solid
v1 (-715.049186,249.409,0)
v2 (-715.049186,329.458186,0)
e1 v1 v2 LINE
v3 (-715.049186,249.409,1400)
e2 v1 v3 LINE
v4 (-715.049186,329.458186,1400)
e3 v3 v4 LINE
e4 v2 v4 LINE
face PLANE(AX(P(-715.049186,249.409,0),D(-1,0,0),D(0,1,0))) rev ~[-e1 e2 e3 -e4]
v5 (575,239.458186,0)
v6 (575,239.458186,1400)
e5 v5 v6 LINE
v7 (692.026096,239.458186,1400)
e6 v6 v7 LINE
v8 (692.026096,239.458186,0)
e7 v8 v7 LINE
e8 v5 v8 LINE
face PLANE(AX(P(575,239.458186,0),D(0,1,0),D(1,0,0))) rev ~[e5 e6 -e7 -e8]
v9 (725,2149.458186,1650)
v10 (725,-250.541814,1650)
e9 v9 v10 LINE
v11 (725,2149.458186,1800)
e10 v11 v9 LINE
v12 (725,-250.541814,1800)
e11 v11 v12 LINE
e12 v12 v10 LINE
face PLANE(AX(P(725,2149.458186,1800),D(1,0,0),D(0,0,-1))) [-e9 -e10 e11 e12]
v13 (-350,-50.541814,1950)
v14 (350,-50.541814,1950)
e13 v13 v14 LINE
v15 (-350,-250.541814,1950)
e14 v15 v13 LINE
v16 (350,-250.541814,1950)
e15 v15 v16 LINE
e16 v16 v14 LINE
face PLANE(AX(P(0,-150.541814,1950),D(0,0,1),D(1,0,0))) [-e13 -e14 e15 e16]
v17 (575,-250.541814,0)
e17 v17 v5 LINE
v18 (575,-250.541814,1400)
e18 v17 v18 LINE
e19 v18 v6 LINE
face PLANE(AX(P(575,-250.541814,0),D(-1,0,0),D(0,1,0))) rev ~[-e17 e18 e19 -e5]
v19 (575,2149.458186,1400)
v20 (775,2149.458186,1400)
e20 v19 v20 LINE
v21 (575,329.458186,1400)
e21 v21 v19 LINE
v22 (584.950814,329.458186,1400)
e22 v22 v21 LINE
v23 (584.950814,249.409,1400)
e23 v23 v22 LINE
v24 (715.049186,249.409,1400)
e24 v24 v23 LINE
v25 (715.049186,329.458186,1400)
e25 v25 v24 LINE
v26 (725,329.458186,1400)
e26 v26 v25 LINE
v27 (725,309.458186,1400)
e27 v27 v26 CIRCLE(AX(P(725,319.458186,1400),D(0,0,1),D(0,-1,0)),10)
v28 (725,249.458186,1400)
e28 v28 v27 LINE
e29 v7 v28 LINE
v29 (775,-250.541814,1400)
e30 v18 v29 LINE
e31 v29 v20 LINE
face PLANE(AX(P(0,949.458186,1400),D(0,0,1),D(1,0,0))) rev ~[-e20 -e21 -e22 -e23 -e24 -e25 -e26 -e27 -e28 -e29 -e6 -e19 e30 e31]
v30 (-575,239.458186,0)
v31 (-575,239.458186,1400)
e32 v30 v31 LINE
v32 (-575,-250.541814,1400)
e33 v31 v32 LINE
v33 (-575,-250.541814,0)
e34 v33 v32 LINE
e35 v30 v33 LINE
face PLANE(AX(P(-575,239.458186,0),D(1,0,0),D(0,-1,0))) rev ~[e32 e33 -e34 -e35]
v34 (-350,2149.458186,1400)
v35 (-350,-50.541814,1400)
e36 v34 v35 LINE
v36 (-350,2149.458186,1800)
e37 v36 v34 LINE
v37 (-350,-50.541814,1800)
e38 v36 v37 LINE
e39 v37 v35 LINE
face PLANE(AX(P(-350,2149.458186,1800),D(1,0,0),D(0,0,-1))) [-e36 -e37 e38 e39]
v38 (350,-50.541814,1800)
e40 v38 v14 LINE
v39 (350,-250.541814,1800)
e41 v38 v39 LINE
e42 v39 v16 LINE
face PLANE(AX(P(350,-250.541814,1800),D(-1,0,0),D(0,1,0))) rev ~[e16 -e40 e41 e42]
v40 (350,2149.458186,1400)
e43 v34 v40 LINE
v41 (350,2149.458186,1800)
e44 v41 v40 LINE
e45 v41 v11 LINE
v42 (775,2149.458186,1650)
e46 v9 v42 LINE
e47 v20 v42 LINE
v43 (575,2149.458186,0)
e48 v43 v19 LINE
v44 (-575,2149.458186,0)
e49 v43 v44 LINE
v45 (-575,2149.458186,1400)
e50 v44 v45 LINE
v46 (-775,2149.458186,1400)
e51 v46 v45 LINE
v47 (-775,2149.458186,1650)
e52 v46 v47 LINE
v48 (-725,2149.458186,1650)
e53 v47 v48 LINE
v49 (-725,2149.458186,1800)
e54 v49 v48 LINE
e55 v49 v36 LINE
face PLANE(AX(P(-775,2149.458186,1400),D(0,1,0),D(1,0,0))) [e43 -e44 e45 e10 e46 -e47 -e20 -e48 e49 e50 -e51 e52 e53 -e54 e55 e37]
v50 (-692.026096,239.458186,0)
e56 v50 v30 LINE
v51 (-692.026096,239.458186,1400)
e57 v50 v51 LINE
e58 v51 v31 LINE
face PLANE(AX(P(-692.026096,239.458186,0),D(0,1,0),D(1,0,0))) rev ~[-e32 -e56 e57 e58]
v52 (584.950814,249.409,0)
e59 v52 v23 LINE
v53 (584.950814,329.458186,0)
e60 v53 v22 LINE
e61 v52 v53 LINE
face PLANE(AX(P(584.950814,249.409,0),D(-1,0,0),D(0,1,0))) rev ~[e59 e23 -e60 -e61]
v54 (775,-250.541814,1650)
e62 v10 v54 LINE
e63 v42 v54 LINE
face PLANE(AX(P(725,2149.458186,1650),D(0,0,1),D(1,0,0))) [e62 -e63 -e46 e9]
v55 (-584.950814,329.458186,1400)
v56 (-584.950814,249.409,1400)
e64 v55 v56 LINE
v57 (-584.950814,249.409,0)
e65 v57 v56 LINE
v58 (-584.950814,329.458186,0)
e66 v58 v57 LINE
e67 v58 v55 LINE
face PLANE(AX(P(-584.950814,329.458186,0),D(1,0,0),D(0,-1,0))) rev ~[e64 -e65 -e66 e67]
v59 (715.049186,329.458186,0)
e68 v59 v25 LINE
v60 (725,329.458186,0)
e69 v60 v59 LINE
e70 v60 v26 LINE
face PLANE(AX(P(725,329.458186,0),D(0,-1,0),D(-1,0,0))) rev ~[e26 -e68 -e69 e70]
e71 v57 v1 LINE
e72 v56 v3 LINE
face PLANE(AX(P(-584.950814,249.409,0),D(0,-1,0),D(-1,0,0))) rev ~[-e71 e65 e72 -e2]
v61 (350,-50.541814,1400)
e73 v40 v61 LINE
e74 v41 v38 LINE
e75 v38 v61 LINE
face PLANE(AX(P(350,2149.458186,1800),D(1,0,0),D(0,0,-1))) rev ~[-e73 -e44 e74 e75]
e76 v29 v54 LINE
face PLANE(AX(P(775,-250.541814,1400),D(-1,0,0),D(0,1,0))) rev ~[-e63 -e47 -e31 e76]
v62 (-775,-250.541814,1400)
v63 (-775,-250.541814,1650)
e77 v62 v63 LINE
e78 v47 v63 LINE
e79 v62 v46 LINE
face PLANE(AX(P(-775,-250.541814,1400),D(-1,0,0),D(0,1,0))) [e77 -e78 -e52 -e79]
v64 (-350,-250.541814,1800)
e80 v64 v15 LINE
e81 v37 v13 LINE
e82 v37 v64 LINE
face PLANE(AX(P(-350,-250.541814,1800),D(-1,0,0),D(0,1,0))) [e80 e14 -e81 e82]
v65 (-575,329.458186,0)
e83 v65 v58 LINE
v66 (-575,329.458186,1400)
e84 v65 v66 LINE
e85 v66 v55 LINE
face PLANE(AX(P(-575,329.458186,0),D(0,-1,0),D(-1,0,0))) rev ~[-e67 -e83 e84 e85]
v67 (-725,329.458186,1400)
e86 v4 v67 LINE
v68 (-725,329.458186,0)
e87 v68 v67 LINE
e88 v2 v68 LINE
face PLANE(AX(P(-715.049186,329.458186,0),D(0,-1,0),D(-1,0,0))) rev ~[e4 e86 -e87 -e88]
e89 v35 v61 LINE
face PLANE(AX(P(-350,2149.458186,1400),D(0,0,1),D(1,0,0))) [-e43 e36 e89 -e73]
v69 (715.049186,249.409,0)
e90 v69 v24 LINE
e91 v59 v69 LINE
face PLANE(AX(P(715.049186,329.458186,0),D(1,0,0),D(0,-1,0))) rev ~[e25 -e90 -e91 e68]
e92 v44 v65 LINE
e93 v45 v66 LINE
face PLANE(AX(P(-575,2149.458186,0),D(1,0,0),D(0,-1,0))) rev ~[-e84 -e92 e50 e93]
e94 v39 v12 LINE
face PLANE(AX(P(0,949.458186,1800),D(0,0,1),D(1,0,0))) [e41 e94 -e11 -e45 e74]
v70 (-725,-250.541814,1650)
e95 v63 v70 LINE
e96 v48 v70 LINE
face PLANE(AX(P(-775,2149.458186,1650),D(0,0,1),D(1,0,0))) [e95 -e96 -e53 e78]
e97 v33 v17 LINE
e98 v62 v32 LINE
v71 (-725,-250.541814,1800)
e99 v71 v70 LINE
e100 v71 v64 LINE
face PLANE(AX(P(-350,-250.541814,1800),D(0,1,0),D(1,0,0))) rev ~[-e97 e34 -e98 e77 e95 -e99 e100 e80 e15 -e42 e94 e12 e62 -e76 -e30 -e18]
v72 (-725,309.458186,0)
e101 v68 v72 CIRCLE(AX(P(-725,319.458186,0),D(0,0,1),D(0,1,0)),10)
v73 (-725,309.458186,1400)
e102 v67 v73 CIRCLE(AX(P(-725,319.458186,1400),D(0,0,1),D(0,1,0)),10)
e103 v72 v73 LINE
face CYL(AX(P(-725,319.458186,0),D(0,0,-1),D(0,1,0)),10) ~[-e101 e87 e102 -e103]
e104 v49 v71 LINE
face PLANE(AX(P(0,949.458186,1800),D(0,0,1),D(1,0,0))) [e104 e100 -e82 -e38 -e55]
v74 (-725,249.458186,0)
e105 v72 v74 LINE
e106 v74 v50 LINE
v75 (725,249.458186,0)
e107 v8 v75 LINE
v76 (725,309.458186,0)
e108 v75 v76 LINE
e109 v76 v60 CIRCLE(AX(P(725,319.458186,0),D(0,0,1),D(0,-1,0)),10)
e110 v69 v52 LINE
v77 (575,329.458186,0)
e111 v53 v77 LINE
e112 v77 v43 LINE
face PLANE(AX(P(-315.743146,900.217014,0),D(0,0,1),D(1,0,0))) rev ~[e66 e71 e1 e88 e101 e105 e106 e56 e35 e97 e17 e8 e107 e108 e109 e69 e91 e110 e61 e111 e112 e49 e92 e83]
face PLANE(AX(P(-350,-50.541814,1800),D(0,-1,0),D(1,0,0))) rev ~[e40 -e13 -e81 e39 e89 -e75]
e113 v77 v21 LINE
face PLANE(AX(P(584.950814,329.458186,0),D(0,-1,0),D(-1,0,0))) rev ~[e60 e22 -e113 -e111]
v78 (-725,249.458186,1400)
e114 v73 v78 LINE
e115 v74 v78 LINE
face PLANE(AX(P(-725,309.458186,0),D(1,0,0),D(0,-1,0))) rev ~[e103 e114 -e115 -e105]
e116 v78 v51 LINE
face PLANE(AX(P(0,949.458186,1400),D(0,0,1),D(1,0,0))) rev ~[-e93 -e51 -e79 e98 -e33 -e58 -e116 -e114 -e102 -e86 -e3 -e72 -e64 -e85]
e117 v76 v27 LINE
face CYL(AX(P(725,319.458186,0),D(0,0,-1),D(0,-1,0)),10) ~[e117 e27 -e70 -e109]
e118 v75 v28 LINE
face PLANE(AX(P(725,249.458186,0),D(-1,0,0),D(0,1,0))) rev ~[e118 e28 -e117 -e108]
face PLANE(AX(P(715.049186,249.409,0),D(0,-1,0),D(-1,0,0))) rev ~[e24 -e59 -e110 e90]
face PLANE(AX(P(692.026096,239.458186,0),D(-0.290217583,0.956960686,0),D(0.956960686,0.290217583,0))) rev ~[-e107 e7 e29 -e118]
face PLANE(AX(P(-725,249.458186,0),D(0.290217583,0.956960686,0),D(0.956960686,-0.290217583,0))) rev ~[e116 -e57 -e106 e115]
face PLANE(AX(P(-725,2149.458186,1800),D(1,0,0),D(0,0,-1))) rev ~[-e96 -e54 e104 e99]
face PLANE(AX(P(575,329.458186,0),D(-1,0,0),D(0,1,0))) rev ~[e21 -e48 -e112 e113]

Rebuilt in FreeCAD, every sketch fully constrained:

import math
import FreeCAD as App
import Part
import Sketcher

doc = App.newDocument("Part")
body = doc.addObject("PartDesign::Body", "Body")

# Sketch on XY plane
sketch1 = body.newObject("Sketcher::SketchObject", "Sketch")
sketch1.AttachmentSupport = (doc.getObject("XY_Plane"), [""])
sketch1.MapMode = "FlatFace"
sketch1.addGeometry(Part.ArcOfCircle(Part.Circle(App.Vector(-725, 319.458186, 0), App.Vector(0, 0, 1), 10), math.radians(90), math.radians(270)), False)
sketch1.addGeometry(Part.LineSegment(App.Vector(-725, 309.458186, 0), App.Vector(-725, 249.458186, 0)), False)
sketch1.addGeometry(Part.LineSegment(App.Vector(-725, 249.458186, 0), App.Vector(-692.026096, 239.458186, 0)), False)
sketch1.addGeometry(Part.LineSegment(App.Vector(-692.026096, 239.458186, 0), App.Vector(-575, 239.458186, 0)), False)
sketch1.addGeometry(Part.LineSegment(App.Vector(-575, 239.458186, 0), App.Vector(-575, -250.541814, 0)), False)
sketch1.addGeometry(Part.LineSegment(App.Vector(-575, -250.541814, 0), App.Vector(575, -250.541814, 0)), False)
sketch1.addGeometry(Part.LineSegment(App.Vector(575, -250.541814, 0), App.Vector(575, 239.458186, 0)), False)
sketch1.addGeometry(Part.LineSegment(App.Vector(575, 239.458186, 0), App.Vector(692.026096, 239.458186, 0)), False)
sketch1.addGeometry(Part.LineSegment(App.Vector(692.026096, 239.458186, 0), App.Vector(725, 249.458186, 0)), False)
sketch1.addGeometry(Part.LineSegment(App.Vector(725, 249.458186, 0), App.Vector(725, 309.458186, 0)), False)
sketch1.addGeometry(Part.ArcOfCircle(Part.Circle(App.Vector(725, 319.458186, 0), App.Vector(0, 0, 1), 10), math.radians(-90), math.radians(90)), False)
sketch1.addGeometry(Part.LineSegment(App.Vector(725, 329.458186, 0), App.Vector(715.049186, 329.458186, 0)), False)
sketch1.addGeometry(Part.LineSegment(App.Vector(715.049186, 329.458186, 0), App.Vector(715.049186, 249.409, 0)), False)
sketch1.addGeometry(Part.LineSegment(App.Vector(715.049186, 249.409, 0), App.Vector(584.950814, 249.409, 0)), False)
sketch1.addGeometry(Part.LineSegment(App.Vector(584.950814, 249.409, 0), App.Vector(584.950814, 329.458186, 0)), False)
sketch1.addGeometry(Part.LineSegment(App.Vector(584.950814, 329.458186, 0), App.Vector(575, 329.458186, 0)), False)
sketch1.addGeometry(Part.LineSegment(App.Vector(575, 329.458186, 0), App.Vector(575, 2149.458186, 0)), False)
sketch1.addGeometry(Part.LineSegment(App.Vector(575, 2149.458186, 0), App.Vector(-575, 2149.458186, 0)), False)
sketch1.addGeometry(Part.LineSegment(App.Vector(-575, 2149.458186, 0), App.Vector(-575, 329.458186, 0)), False)
sketch1.addGeometry(Part.LineSegment(App.Vector(-575, 329.458186, 0), App.Vector(-584.950814, 329.458186, 0)), False)
sketch1.addGeometry(Part.LineSegment(App.Vector(-584.950814, 329.458186, 0), App.Vector(-584.950814, 249.409, 0)), False)
sketch1.addGeometry(Part.LineSegment(App.Vector(-584.950814, 249.409, 0), App.Vector(-715.049186, 249.409, 0)), False)
sketch1.addGeometry(Part.LineSegment(App.Vector(-715.049186, 249.409, 0), App.Vector(-715.049186, 329.458186, 0)), False)
sketch1.addGeometry(Part.LineSegment(App.Vector(-715.049186, 329.458186, 0), App.Vector(-725, 329.458186, 0)), False)
sketch1.addConstraint(Sketcher.Constraint("Coincident", 0, 2, 1, 1))
sketch1.addConstraint(Sketcher.Constraint("Coincident", 1, 2, 2, 1))
sketch1.addConstraint(Sketcher.Constraint("Coincident", 2, 2, 3, 1))
sketch1.addConstraint(Sketcher.Constraint("Coincident", 3, 2, 4, 1))
sketch1.addConstraint(Sketcher.Constraint("Coincident", 4, 2, 5, 1))
sketch1.addConstraint(Sketcher.Constraint("Coincident", 5, 2, 6, 1))
sketch1.addConstraint(Sketcher.Constraint("Coincident", 6, 2, 7, 1))
sketch1.addConstraint(Sketcher.Constraint("Coincident", 7, 2, 8, 1))
sketch1.addConstraint(Sketcher.Constraint("Coincident", 8, 2, 9, 1))
sketch1.addConstraint(Sketcher.Constraint("Coincident", 9, 2, 10, 1))
sketch1.addConstraint(Sketcher.Constraint("Tangent", 10, 2, 11, 1))
sketch1.addConstraint(Sketcher.Constraint("Coincident", 11, 2, 12, 1))
sketch1.addConstraint(Sketcher.Constraint("Coincident", 12, 2, 13, 1))
sketch1.addConstraint(Sketcher.Constraint("Coincident", 13, 2, 14, 1))
sketch1.addConstraint(Sketcher.Constraint("Coincident", 14, 2, 15, 1))
sketch1.addConstraint(Sketcher.Constraint("Coincident", 15, 2, 16, 1))
sketch1.addConstraint(Sketcher.Constraint("Coincident", 16, 2, 17, 1))
sketch1.addConstraint(Sketcher.Constraint("Coincident", 17, 2, 18, 1))
sketch1.addConstraint(Sketcher.Constraint("Coincident", 18, 2, 19, 1))
sketch1.addConstraint(Sketcher.Constraint("Coincident", 19, 2, 20, 1))
sketch1.addConstraint(Sketcher.Constraint("Coincident", 20, 2, 21, 1))
sketch1.addConstraint(Sketcher.Constraint("Coincident", 21, 2, 22, 1))
sketch1.addConstraint(Sketcher.Constraint("Coincident", 22, 2, 23, 1))
sketch1.addConstraint(Sketcher.Constraint("Tangent", 23, 2, 0, 1))
sketch1.addConstraint(Sketcher.Constraint("Vertical", 1))
sketch1.addConstraint(Sketcher.Constraint("Horizontal", 3))
sketch1.addConstraint(Sketcher.Constraint("Vertical", 4))
sketch1.addConstraint(Sketcher.Constraint("Horizontal", 5))
sketch1.addConstraint(Sketcher.Constraint("Vertical", 6))
sketch1.addConstraint(Sketcher.Constraint("Horizontal", 7))
sketch1.addConstraint(Sketcher.Constraint("Vertical", 9))
sketch1.addConstraint(Sketcher.Constraint("Horizontal", 11))
sketch1.addConstraint(Sketcher.Constraint("Vertical", 12))
sketch1.addConstraint(Sketcher.Constraint("Horizontal", 13))
sketch1.addConstraint(Sketcher.Constraint("Vertical", 14))
sketch1.addConstraint(Sketcher.Constraint("Horizontal", 15))
sketch1.addConstraint(Sketcher.Constraint("Vertical", 16))
sketch1.addConstraint(Sketcher.Constraint("Horizontal", 17))
sketch1.addConstraint(Sketcher.Constraint("Vertical", 18))
sketch1.addConstraint(Sketcher.Constraint("Horizontal", 19))
sketch1.addConstraint(Sketcher.Constraint("Vertical", 20))
sketch1.addConstraint(Sketcher.Constraint("Horizontal", 21))
sketch1.addConstraint(Sketcher.Constraint("Vertical", 22))
sketch1.addConstraint(Sketcher.Constraint("Horizontal", 23))
sketch1.addConstraint(Sketcher.Constraint("Equal", 0, 10))
sketch1.addConstraint(Sketcher.Constraint("Symmetric", 0, 3, 10, 3, -2))
sketch1.addConstraint(Sketcher.Constraint("Symmetric", 3, 2, 6, 2, -2))
sketch1.addConstraint(Sketcher.Constraint("Symmetric", 1, 2, 8, 2, -2))
sketch1.addConstraint(Sketcher.Constraint("Symmetric", 15, 2, 18, 2, -2))
sketch1.addConstraint(Sketcher.Constraint("Symmetric", 13, 2, 20, 2, -2))
sketch1.addConstraint(Sketcher.Constraint("Horizontal", 11, 2, 14, 2))
sketch1.addConstraint(Sketcher.Constraint("Vertical", 10, 3, 8, 2))
sketch1.addConstraint(Sketcher.Constraint("Vertical", 6, 2, 15, 2))
sketch1.addConstraint(Sketcher.Constraint("Equal", 3, 7))
sketch1.addConstraint(Sketcher.Constraint("Equal", 11, 15))
sketch1.addConstraint(Sketcher.Constraint("Equal", 13, 21))
sketch1.addConstraint(Sketcher.Constraint("Radius", 0, 10.0))
sketch1.addConstraint(Sketcher.Constraint("DistanceX", 5, 1, 5, 2, 1150.0))
sketch1.addConstraint(Sketcher.Constraint("DistanceY", 1, 2, 1, 1, 60.0))
sketch1.addConstraint(Sketcher.Constraint("DistanceY", 4, 2, 4, 1, 490.0))
sketch1.addConstraint(Sketcher.Constraint("DistanceY", 16, 1, 16, 2, 1820.0))
sketch1.addConstraint(Sketcher.Constraint("DistanceX", 0, 3, -1, 1, 725.0))
sketch1.addConstraint(Sketcher.Constraint("DistanceY", 2, 2, 1, 2, 10.0))
sketch1.addConstraint(Sketcher.Constraint("DistanceY", -1, 1, 12, 2, 249.409))
sketch1.addConstraint(Sketcher.Constraint("DistanceX", 13, 2, 13, 1, 130.098372))
sketch1.addConstraint(Sketcher.Constraint("DistanceX", 3, 1, 3, 2, 117.026096))
sketch1.addConstraint(Sketcher.Constraint("DistanceY", 12, 2, 12, 1, 80.049186))
pad1 = body.newObject("PartDesign::Pad", "Pad")
pad1.Profile = sketch1
pad1.Length = 1400

# Sketch on XY plane
sketch2 = body.newObject("Sketcher::SketchObject", "Sketch001")
sketch2.AttachmentSupport = (doc.getObject("XY_Plane"), [""])
sketch2.MapMode = "FlatFace"
sketch2.AttachmentOffset = App.Placement(App.Vector(0, 0, 1400), App.Rotation())
sketch2.addGeometry(Part.LineSegment(App.Vector(-775, 2149.458186, 0), App.Vector(-775, -250.541814, 0)), False)
sketch2.addGeometry(Part.LineSegment(App.Vector(-775, -250.541814, 0), App.Vector(775, -250.541814, 0)), False)
sketch2.addGeometry(Part.LineSegment(App.Vector(775, -250.541814, 0), App.Vector(775, 2149.458186, 0)), False)
sketch2.addGeometry(Part.LineSegment(App.Vector(775, 2149.458186, 0), App.Vector(-775, 2149.458186, 0)), False)
sketch2.addConstraint(Sketcher.Constraint("Coincident", 0, 2, 1, 1))
sketch2.addConstraint(Sketcher.Constraint("Coincident", 1, 2, 2, 1))
sketch2.addConstraint(Sketcher.Constraint("Coincident", 2, 2, 3, 1))
sketch2.addConstraint(Sketcher.Constraint("Coincident", 3, 2, 0, 1))
sketch2.addConstraint(Sketcher.Constraint("Vertical", 0))
sketch2.addConstraint(Sketcher.Constraint("Horizontal", 1))
sketch2.addConstraint(Sketcher.Constraint("Vertical", 2))
sketch2.addConstraint(Sketcher.Constraint("Horizontal", 3))
sketch2.addConstraint(Sketcher.Constraint("DistanceX", 1, 1, 1, 2, 1550.0))
sketch2.addConstraint(Sketcher.Constraint("DistanceY", 0, 2, 0, 1, 2400.0))
sketch2.addConstraint(Sketcher.Constraint("DistanceX", 0, 2, -1, 1, 775.0))
sketch2.addConstraint(Sketcher.Constraint("DistanceY", 0, 2, -1, 1, 250.541814))
pad2 = body.newObject("PartDesign::Pad", "Pad001")
pad2.Profile = sketch2
pad2.Length = 400

# Sketch on XZ plane
sketch3 = body.newObject("Sketcher::SketchObject", "Sketch002")
sketch3.AttachmentSupport = (doc.getObject("XZ_Plane"), [""])
sketch3.MapMode = "FlatFace"
sketch3.AttachmentOffset = App.Placement(App.Vector(0, 0, -2149.458186), App.Rotation())
sketch3.addGeometry(Part.LineSegment(App.Vector(-775, 1650, 0), App.Vector(-775, 1800, 0)), False)
sketch3.addGeometry(Part.LineSegment(App.Vector(-775, 1800, 0), App.Vector(-725, 1800, 0)), False)
sketch3.addGeometry(Part.LineSegment(App.Vector(-725, 1800, 0), App.Vector(-725, 1650, 0)), False)
sketch3.addGeometry(Part.LineSegment(App.Vector(-725, 1650, 0), App.Vector(-775, 1650, 0)), False)
sketch3.addGeometry(Part.LineSegment(App.Vector(725, 1650, 0), App.Vector(725, 1800, 0)), False)
sketch3.addGeometry(Part.LineSegment(App.Vector(725, 1800, 0), App.Vector(775, 1800, 0)), False)
sketch3.addGeometry(Part.LineSegment(App.Vector(775, 1800, 0), App.Vector(775, 1650, 0)), False)
sketch3.addGeometry(Part.LineSegment(App.Vector(775, 1650, 0), App.Vector(725, 1650, 0)), False)
sketch3.addGeometry(Part.LineSegment(App.Vector(-350, 1400, 0), App.Vector(-350, 1800, 0)), False)
sketch3.addGeometry(Part.LineSegment(App.Vector(-350, 1800, 0), App.Vector(350, 1800, 0)), False)
sketch3.addGeometry(Part.LineSegment(App.Vector(350, 1800, 0), App.Vector(350, 1400, 0)), False)
sketch3.addGeometry(Part.LineSegment(App.Vector(350, 1400, 0), App.Vector(-350, 1400, 0)), False)
sketch3.addConstraint(Sketcher.Constraint("Coincident", 0, 2, 1, 1))
sketch3.addConstraint(Sketcher.Constraint("Coincident", 1, 2, 2, 1))
sketch3.addConstraint(Sketcher.Constraint("Coincident", 2, 2, 3, 1))
sketch3.addConstraint(Sketcher.Constraint("Coincident", 3, 2, 0, 1))
sketch3.addConstraint(Sketcher.Constraint("Coincident", 4, 2, 5, 1))
sketch3.addConstraint(Sketcher.Constraint("Coincident", 5, 2, 6, 1))
sketch3.addConstraint(Sketcher.Constraint("Coincident", 6, 2, 7, 1))
sketch3.addConstraint(Sketcher.Constraint("Coincident", 7, 2, 4, 1))
sketch3.addConstraint(Sketcher.Constraint("Coincident", 8, 2, 9, 1))
sketch3.addConstraint(Sketcher.Constraint("Coincident", 9, 2, 10, 1))
sketch3.addConstraint(Sketcher.Constraint("Coincident", 10, 2, 11, 1))
sketch3.addConstraint(Sketcher.Constraint("Coincident", 11, 2, 8, 1))
sketch3.addConstraint(Sketcher.Constraint("Vertical", 0))
sketch3.addConstraint(Sketcher.Constraint("Horizontal", 1))
sketch3.addConstraint(Sketcher.Constraint("Vertical", 2))
sketch3.addConstraint(Sketcher.Constraint("Horizontal", 3))
sketch3.addConstraint(Sketcher.Constraint("Vertical", 4))
sketch3.addConstraint(Sketcher.Constraint("Horizontal", 5))
sketch3.addConstraint(Sketcher.Constraint("Vertical", 6))
sketch3.addConstraint(Sketcher.Constraint("Horizontal", 7))
sketch3.addConstraint(Sketcher.Constraint("Vertical", 8))
sketch3.addConstraint(Sketcher.Constraint("Horizontal", 9))
sketch3.addConstraint(Sketcher.Constraint("Vertical", 10))
sketch3.addConstraint(Sketcher.Constraint("Horizontal", 11))
sketch3.addConstraint(Sketcher.Constraint("Symmetric", 1, 2, 4, 2, -2))
sketch3.addConstraint(Sketcher.Constraint("Symmetric", 3, 2, 6, 2, -2))
sketch3.addConstraint(Sketcher.Constraint("Horizontal", 5, 2, 8, 2))
sketch3.addConstraint(Sketcher.Constraint("DistanceX", 1, 1, 1, 2, 50.0))
sketch3.addConstraint(Sketcher.Constraint("DistanceX", 9, 1, 9, 2, 700.0))
sketch3.addConstraint(Sketcher.Constraint("DistanceY", 0, 1, 0, 2, 150.0))
sketch3.addConstraint(Sketcher.Constraint("DistanceY", 8, 1, 8, 2, 400.0))
sketch3.addConstraint(Sketcher.Constraint("DistanceX", 0, 2, -1, 1, 775.0))
sketch3.addConstraint(Sketcher.Constraint("DistanceY", -1, 1, 0, 2, 1800.0))
sketch3.addConstraint(Sketcher.Constraint("DistanceX", 8, 2, -1, 1, 350.0))
pocket1 = body.newObject("PartDesign::Pocket", "Pocket")
pocket1.Profile = sketch3
pocket1.Type = "ThroughAll"
pocket1.Reversed = True

# Sketch on XY plane
sketch4 = body.newObject("Sketcher::SketchObject", "Sketch003")
sketch4.AttachmentSupport = (doc.getObject("XY_Plane"), [""])
sketch4.MapMode = "FlatFace"
sketch4.AttachmentOffset = App.Placement(App.Vector(0, 0, 1800), App.Rotation())
sketch4.addGeometry(Part.LineSegment(App.Vector(-350, -50.541814, 0), App.Vector(-350, -250.541814, 0)), False)
sketch4.addGeometry(Part.LineSegment(App.Vector(-350, -250.541814, 0), App.Vector(350, -250.541814, 0)), False)
sketch4.addGeometry(Part.LineSegment(App.Vector(350, -250.541814, 0), App.Vector(350, -50.541814, 0)), False)
sketch4.addGeometry(Part.LineSegment(App.Vector(350, -50.541814, 0), App.Vector(-350, -50.541814, 0)), False)
sketch4.addConstraint(Sketcher.Constraint("Coincident", 0, 2, 1, 1))
sketch4.addConstraint(Sketcher.Constraint("Coincident", 1, 2, 2, 1))
sketch4.addConstraint(Sketcher.Constraint("Coincident", 2, 2, 3, 1))
sketch4.addConstraint(Sketcher.Constraint("Coincident", 3, 2, 0, 1))
sketch4.addConstraint(Sketcher.Constraint("Vertical", 0))
sketch4.addConstraint(Sketcher.Constraint("Horizontal", 1))
sketch4.addConstraint(Sketcher.Constraint("Vertical", 2))
sketch4.addConstraint(Sketcher.Constraint("Horizontal", 3))
sketch4.addConstraint(Sketcher.Constraint("DistanceX", 1, 1, 1, 2, 700.0))
sketch4.addConstraint(Sketcher.Constraint("DistanceY", 0, 2, 0, 1, 200.0))
sketch4.addConstraint(Sketcher.Constraint("DistanceX", 0, 2, -1, 1, 350.0))
sketch4.addConstraint(Sketcher.Constraint("DistanceY", 0, 2, -1, 1, 250.541814))
pad3 = body.newObject("PartDesign::Pad", "Pad002")
pad3.Profile = sketch4
pad3.Type = "TwoLengths"
pad3.Length = 150
pad3.Length2 = 1800

doc.recompute()
